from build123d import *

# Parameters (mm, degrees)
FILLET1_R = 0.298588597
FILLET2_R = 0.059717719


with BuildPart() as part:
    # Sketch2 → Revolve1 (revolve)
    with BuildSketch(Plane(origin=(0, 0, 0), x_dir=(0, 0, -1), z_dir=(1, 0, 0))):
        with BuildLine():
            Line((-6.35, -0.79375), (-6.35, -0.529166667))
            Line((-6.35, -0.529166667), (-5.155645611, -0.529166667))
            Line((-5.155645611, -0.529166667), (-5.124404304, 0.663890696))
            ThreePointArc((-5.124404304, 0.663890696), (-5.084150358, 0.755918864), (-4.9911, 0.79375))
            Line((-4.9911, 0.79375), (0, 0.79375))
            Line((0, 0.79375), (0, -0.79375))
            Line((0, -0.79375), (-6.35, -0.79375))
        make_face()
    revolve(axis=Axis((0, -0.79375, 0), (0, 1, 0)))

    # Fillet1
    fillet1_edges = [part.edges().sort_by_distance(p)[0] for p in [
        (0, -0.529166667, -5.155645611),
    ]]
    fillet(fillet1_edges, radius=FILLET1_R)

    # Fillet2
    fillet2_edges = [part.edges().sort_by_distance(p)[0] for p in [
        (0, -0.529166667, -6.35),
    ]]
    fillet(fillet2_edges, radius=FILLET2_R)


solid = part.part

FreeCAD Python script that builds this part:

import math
import FreeCAD as App
import Part
import Sketcher
from FreeCAD import Vector
Q = App.Units.Quantity


def edges_at(feature, points):
    """Names of the edges that pass closest to the given points."""
    edges = feature.Shape.Edges
    near = lambda p: min(range(len(edges)), key=lambda i: edges[i].distToShape(Part.Vertex(*p))[0])
    return sorted({f"Edge{near(p) + 1}" for p in points})

doc = App.newDocument("Part")
body = doc.addObject("PartDesign::Body", "Body")

# Sketch on YZ plane
sketch1 = body.newObject("Sketcher::SketchObject", "Sketch")
sketch1.AttachmentSupport = (doc.getObject("YZ_Plane"), [""])
sketch1.MapMode = "FlatFace"
sketch1.addGeometry(Part.LineSegment(Vector(-0.529167, 6.35, 0), Vector(-0.79375, 6.35, 0)), False)
sketch1.addGeometry(Part.LineSegment(Vector(-0.79375, 6.35, 0), Vector(-0.79375, 0, 0)), False)
sketch1.addGeometry(Part.LineSegment(Vector(-0.79375, 0, 0), Vector(0.79375, 0, 0)), False)
sketch1.addGeometry(Part.LineSegment(Vector(0.79375, 0, 0), Vector(0.79375, 4.9911, 0)), False)
sketch1.addGeometry(Part.ArcOfCircle(Part.Circle(Vector(0.6604, 4.9911, 0), Vector(0, 0, 1), 0.13335), math.radians(0), math.radians(88.5)), False)
sketch1.addGeometry(Part.LineSegment(Vector(0.663891, 5.124404, 0), Vector(-0.529167, 5.155646, 0)), False)
sketch1.addGeometry(Part.LineSegment(Vector(-0.529167, 5.155646, 0), Vector(-0.529167, 6.35, 0)), False)
sketch1.addConstraint(Sketcher.Constraint("Coincident", 0, 2, 1, 1))
sketch1.addConstraint(Sketcher.Constraint("Coincident", 1, 2, 2, 1))
sketch1.addConstraint(Sketcher.Constraint("Coincident", 2, 2, 3, 1))
sketch1.addConstraint(Sketcher.Constraint("Tangent", 3, 2, 4, 1))
sketch1.addConstraint(Sketcher.Constraint("Tangent", 4, 2, 5, 1))
sketch1.addConstraint(Sketcher.Constraint("Coincident", 5, 2, 6, 1))
sketch1.addConstraint(Sketcher.Constraint("Coincident", 6, 2, 0, 1))
sketch1.addConstraint(Sketcher.Constraint("Horizontal", 0))
sketch1.addConstraint(Sketcher.Constraint("Vertical", 1))
sketch1.addConstraint(Sketcher.Constraint("Horizontal", 2))
sketch1.addConstraint(Sketcher.Constraint("Vertical", 3))
sketch1.addConstraint(Sketcher.Constraint("Vertical", 6))
sketch1.addConstraint(Sketcher.Constraint("Symmetric", 1, 2, 2, 2, -1, 1))
sketch1.addConstraint(Sketcher.Constraint("DistanceY", 1, 2, 1, 1, Q("0.25 in")))
sketch1.addConstraint(Sketcher.Constraint("Angle", 5, Q("178.5 deg")))
sketch1.addConstraint(Sketcher.Constraint("DistanceX", 2, 1, 2, 2, Q("0.0625 in")))
sketch1.addConstraint(Sketcher.Constraint("DistanceY", 3, 1, 3, 2, Q("0.1965 in")))
sketch1.addConstraint(Sketcher.Constraint("DistanceX", -1, 1, 4, 3, Q("0.026 in")))
sketch1.addConstraint(Sketcher.Constraint("DistanceX", 0, 2, 0, 1, 0.264583))
revolution = body.newObject("PartDesign::Revolution", "Revolution")
revolution.Profile = sketch1
revolution.ReferenceAxis = (sketch1, ["H_Axis"])
revolution.Angle = 360
doc.recompute()

fillet = body.newObject("PartDesign::Fillet", "Fillet")
fillet.Base = (revolution, edges_at(revolution, [(0, -0.529, -5.156)]))
fillet.Radius = 0.298589
doc.recompute()

fillet2 = body.newObject("PartDesign::Fillet", "Fillet001")
fillet2.Base = (fillet, edges_at(fillet, [(0, -0.529, -6.35)]))
fillet2.Radius = 0.059718

doc.recompute()
